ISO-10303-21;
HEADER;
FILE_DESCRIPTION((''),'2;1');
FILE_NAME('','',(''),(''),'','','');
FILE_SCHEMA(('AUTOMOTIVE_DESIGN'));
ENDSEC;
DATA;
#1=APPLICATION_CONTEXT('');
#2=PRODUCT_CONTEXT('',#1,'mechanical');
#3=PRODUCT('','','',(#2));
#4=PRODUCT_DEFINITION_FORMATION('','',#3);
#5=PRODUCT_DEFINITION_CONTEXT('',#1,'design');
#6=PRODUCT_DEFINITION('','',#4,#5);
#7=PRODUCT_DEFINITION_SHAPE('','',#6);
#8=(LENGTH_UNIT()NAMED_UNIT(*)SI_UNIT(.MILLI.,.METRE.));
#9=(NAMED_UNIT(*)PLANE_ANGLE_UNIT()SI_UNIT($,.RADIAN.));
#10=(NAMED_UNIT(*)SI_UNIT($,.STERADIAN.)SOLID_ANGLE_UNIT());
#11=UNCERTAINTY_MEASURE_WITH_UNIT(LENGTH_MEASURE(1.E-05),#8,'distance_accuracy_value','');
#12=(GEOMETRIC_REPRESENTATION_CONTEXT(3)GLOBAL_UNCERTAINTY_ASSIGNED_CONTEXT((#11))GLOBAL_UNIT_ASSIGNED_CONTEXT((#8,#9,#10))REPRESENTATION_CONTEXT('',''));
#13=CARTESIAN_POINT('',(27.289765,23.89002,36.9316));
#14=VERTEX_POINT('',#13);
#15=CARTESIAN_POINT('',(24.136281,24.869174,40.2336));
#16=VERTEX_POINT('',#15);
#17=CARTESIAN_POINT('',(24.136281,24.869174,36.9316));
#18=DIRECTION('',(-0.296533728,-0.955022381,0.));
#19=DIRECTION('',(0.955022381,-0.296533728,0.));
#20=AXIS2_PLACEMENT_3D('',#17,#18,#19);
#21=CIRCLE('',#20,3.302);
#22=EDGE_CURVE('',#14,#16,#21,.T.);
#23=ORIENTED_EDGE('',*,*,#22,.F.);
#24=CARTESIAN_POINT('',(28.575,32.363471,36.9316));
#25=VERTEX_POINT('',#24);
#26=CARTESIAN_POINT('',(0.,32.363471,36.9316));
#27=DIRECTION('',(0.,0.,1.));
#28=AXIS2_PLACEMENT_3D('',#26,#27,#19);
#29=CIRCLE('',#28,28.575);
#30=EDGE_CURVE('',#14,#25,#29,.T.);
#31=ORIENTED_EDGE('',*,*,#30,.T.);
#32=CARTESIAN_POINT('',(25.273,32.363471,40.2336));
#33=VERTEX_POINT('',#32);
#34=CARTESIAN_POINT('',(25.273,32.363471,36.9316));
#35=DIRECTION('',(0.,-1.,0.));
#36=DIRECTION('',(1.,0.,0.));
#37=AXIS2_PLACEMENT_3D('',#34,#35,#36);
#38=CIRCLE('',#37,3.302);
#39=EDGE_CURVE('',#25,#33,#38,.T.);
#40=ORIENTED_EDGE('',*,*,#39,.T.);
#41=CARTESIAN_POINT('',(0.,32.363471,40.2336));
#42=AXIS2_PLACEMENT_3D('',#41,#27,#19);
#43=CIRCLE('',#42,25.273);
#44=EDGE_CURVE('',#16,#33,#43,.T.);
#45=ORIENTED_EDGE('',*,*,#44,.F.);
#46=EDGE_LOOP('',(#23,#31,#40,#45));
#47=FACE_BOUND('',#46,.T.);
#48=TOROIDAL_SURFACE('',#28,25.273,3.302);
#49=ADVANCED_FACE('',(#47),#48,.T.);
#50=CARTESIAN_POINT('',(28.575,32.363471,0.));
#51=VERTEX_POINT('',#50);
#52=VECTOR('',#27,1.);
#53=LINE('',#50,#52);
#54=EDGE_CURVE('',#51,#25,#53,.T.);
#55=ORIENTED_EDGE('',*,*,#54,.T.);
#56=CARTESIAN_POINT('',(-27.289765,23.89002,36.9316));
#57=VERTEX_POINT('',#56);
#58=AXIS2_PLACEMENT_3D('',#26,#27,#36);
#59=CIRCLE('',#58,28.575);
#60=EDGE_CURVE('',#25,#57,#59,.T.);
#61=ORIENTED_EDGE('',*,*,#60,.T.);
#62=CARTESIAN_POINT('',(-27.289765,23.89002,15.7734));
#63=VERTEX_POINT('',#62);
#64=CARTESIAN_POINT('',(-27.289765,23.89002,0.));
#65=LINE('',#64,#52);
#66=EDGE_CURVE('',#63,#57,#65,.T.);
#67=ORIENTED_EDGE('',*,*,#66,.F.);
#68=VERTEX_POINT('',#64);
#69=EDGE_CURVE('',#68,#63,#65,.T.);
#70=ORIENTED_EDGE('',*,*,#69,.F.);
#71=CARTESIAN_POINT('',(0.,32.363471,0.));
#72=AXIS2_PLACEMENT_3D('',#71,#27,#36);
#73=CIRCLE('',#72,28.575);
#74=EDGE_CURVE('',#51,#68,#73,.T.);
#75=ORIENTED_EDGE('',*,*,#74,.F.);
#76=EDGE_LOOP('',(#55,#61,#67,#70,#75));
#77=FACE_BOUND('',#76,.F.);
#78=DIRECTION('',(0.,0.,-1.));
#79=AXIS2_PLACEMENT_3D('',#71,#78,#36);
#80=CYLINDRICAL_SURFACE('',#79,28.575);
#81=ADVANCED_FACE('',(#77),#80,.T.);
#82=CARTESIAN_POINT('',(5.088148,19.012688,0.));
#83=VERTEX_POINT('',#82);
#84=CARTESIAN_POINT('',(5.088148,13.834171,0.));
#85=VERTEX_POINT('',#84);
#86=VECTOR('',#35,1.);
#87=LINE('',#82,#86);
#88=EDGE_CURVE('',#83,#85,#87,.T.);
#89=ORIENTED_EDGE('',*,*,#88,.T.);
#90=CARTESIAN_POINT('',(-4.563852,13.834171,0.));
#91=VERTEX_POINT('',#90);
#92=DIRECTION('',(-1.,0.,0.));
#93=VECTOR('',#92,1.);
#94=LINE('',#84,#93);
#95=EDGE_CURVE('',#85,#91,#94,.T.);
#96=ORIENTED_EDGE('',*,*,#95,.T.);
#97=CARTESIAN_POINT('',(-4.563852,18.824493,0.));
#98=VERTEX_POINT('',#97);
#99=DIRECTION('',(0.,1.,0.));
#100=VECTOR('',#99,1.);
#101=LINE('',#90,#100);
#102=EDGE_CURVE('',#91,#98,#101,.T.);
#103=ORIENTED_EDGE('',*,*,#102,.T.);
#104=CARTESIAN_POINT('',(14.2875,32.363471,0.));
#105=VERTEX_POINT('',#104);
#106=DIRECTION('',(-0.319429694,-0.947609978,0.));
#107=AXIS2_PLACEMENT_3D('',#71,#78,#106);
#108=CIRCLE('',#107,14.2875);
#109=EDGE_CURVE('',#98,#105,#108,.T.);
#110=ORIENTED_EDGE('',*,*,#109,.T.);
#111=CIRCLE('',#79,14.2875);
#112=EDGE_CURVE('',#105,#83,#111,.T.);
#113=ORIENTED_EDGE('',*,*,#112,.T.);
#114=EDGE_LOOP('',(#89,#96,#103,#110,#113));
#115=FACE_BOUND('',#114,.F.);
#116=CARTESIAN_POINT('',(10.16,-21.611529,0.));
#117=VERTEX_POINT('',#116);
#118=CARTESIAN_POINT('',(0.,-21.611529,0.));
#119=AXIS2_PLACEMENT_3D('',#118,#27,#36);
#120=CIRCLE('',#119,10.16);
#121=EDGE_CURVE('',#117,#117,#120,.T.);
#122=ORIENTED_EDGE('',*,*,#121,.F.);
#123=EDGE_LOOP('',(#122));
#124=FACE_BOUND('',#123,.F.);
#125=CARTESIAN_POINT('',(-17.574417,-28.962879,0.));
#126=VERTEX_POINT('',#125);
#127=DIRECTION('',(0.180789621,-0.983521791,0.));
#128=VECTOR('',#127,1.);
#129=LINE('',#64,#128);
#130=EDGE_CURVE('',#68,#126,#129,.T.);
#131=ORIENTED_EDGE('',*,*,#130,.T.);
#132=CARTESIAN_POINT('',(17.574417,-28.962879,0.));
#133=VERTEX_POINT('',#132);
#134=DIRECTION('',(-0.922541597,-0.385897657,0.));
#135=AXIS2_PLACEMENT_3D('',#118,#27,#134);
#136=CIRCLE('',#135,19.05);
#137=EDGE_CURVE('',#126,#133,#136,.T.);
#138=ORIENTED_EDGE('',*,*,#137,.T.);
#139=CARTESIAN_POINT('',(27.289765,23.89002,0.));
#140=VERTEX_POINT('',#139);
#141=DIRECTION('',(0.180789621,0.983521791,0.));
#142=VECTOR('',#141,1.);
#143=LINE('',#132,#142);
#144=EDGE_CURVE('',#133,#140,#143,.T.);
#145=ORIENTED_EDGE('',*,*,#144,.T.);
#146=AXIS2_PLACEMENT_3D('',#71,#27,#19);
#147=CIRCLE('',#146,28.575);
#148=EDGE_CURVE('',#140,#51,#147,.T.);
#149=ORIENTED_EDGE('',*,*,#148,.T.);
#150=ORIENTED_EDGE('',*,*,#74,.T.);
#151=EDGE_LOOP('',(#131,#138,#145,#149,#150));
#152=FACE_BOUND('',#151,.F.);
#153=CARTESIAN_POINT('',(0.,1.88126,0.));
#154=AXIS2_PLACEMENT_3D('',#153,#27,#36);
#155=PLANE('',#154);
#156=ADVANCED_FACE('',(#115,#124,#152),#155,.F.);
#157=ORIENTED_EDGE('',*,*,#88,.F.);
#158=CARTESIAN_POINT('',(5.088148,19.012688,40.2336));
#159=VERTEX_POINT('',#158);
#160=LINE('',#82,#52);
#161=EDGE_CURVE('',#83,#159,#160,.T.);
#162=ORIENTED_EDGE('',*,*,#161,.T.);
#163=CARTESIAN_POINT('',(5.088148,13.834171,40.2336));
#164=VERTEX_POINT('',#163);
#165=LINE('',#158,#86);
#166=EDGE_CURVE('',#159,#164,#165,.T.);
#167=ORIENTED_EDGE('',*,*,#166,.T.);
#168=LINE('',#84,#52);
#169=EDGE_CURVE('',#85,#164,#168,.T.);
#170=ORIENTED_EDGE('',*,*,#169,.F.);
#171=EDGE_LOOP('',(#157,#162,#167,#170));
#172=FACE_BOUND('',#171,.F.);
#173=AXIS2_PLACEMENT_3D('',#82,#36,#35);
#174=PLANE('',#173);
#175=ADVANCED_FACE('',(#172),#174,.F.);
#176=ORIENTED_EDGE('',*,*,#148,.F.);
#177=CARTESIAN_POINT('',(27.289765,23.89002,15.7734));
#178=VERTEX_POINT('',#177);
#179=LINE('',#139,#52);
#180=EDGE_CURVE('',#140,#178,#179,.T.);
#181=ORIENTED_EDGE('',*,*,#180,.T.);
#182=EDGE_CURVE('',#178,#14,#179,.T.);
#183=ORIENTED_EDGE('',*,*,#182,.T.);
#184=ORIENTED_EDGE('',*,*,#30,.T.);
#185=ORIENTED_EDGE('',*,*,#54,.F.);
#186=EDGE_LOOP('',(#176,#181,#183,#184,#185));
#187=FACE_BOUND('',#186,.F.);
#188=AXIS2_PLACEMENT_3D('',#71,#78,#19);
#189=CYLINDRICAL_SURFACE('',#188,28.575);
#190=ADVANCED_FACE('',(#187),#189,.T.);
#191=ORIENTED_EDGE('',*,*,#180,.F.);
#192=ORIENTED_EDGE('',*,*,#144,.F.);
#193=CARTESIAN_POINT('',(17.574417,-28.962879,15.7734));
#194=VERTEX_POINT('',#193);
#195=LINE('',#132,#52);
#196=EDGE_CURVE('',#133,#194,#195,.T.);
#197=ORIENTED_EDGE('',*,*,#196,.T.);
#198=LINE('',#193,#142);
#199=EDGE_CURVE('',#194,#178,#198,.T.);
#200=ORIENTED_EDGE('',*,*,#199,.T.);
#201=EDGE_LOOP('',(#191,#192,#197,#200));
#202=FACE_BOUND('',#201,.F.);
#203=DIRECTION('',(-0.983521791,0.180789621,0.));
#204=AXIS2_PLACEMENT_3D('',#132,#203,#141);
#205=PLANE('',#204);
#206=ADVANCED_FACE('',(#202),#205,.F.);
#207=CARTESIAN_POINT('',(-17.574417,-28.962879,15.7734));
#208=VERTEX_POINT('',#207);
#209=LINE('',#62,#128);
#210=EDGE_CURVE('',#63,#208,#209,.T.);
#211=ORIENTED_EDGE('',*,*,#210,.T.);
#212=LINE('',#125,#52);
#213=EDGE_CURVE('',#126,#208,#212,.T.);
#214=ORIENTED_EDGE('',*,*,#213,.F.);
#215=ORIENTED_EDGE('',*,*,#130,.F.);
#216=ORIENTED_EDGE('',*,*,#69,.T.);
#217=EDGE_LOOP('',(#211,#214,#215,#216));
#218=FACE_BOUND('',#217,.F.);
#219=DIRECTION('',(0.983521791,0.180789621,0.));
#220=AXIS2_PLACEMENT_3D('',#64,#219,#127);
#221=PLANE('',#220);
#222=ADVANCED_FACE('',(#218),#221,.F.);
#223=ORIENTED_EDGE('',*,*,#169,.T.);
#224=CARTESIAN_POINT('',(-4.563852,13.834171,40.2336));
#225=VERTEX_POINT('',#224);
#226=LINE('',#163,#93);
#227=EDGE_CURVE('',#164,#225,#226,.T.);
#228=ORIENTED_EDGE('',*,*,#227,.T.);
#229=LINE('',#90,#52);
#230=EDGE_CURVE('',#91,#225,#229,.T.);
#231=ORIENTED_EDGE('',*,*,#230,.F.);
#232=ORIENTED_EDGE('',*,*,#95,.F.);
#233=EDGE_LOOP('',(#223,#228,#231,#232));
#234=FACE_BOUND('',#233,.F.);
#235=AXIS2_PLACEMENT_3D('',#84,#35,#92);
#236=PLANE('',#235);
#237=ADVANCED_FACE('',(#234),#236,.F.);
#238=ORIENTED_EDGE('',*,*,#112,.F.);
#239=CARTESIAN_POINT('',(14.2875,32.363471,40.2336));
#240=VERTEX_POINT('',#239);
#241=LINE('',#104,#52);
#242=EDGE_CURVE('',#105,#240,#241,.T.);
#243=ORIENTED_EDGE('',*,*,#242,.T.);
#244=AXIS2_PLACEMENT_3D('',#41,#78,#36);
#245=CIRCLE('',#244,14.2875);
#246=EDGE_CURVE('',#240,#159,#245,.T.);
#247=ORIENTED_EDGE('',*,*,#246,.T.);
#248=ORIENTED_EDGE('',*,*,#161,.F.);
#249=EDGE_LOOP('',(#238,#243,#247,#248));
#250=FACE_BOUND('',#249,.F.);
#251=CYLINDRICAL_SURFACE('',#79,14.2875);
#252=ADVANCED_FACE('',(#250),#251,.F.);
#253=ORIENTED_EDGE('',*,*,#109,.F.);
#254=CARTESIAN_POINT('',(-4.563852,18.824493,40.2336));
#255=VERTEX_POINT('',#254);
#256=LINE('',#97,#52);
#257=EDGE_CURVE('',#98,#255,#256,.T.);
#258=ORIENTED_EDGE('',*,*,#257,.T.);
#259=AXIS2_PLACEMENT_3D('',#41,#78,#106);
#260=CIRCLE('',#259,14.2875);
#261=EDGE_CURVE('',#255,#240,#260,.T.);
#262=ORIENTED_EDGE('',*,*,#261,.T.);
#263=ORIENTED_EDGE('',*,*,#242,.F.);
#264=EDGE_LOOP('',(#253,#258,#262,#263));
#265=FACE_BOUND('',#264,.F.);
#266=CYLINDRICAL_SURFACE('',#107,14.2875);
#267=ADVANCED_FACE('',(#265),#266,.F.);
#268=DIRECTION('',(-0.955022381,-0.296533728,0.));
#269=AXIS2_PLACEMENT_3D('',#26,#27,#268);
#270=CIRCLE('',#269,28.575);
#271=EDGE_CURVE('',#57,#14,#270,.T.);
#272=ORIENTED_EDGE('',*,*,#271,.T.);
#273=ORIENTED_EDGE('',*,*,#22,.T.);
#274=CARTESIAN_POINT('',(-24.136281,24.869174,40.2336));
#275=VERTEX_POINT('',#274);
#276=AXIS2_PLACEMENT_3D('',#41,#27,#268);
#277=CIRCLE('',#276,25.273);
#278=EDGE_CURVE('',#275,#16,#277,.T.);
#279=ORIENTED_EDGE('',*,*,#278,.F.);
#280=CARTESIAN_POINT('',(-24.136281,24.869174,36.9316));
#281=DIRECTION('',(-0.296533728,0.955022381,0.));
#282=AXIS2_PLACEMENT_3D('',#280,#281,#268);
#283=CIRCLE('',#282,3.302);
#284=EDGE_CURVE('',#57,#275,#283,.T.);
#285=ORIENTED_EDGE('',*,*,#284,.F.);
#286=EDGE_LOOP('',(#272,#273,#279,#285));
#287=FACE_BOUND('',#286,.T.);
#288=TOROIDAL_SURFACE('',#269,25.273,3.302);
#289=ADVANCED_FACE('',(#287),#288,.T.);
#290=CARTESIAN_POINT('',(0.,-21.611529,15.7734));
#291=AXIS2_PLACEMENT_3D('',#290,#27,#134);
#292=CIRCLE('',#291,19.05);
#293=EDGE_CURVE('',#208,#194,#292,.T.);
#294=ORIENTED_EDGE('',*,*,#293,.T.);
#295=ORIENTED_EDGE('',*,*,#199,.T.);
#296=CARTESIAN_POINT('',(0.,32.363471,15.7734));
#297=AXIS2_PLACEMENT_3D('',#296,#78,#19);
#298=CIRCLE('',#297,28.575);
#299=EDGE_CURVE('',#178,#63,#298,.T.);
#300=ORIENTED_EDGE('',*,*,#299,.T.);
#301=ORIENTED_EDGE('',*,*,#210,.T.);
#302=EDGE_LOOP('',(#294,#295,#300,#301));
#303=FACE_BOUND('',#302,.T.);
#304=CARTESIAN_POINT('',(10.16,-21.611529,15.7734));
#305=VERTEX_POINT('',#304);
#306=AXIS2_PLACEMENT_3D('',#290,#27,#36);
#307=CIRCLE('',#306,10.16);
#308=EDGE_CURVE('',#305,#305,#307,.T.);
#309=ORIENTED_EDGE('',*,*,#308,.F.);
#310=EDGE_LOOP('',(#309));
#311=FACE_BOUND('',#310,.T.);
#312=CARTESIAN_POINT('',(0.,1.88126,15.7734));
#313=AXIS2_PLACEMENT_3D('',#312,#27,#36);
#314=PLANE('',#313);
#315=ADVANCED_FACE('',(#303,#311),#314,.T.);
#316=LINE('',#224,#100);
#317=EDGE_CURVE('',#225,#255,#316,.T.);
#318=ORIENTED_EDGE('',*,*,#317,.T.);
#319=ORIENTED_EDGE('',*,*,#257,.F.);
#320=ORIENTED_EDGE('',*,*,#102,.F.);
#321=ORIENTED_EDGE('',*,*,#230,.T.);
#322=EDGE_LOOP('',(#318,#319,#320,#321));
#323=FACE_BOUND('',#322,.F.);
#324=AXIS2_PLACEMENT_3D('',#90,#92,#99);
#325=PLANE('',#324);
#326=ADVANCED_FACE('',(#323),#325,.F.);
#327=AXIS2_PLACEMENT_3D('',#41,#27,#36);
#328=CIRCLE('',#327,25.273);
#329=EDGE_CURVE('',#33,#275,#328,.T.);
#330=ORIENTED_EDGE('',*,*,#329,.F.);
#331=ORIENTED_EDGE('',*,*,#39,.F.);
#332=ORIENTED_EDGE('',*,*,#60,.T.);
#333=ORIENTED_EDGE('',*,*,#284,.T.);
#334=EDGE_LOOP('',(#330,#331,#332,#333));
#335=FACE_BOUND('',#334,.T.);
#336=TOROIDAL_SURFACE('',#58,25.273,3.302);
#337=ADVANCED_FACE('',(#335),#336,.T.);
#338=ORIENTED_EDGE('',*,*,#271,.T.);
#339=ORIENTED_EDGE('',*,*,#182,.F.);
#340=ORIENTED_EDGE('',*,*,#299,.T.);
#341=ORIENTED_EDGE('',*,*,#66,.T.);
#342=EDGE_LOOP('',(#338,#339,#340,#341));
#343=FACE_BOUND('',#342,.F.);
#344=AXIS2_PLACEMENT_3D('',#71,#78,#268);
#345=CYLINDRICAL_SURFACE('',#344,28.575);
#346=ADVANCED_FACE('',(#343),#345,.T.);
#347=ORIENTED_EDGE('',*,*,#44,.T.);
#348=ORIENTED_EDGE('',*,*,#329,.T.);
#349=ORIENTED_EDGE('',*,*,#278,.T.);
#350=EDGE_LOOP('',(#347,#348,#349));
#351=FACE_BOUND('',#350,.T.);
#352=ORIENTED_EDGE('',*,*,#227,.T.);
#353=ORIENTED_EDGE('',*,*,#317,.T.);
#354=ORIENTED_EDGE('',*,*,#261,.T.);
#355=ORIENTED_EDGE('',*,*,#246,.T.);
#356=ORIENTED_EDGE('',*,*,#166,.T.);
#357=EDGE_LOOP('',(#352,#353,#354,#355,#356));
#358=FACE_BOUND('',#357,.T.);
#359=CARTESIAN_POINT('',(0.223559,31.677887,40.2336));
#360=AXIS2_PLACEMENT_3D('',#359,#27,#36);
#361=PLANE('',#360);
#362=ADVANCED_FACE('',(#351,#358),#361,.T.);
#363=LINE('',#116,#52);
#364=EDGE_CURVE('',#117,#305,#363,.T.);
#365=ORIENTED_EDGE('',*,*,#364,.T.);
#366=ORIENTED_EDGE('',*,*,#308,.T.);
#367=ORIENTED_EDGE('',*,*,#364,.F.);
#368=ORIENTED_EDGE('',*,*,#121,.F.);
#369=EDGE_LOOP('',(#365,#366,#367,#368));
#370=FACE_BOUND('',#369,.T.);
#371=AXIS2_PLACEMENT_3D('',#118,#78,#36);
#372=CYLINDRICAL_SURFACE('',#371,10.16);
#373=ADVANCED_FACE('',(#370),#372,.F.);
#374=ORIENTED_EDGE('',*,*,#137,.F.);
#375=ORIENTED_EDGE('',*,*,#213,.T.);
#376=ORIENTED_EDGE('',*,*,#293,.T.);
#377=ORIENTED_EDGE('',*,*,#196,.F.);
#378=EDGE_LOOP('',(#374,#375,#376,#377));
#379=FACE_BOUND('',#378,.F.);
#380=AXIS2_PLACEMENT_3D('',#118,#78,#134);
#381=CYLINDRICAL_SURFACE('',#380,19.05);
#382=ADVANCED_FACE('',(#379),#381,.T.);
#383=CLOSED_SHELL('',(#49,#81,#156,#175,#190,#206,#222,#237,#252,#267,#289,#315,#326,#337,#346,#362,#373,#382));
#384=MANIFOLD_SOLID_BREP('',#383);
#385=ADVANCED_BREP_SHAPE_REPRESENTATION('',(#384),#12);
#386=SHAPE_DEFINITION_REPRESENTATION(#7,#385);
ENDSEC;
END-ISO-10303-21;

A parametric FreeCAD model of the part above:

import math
import FreeCAD as App
import Part
import Sketcher

V = App.Vector
Q = App.Units.Quantity


def edges_at(feature, points):
    """Names of the edges that pass closest to the given points."""
    edges = feature.Shape.Edges
    near = lambda p: min(range(len(edges)), key=lambda i: edges[i].distToShape(Part.Vertex(*p))[0])
    return sorted({f"Edge{near(p) + 1}" for p in points})

doc = App.newDocument("Part")
params = doc.addObject("Spreadsheet::Sheet", "Params")
for row, (alias, value) in enumerate([
    ("sketch1_radius", "1.125 in"),
    ("sketch1_radius2", "0.5625 in"),
    ("sketch1_width", "0.38 in"),
    ("pad1_length", "1.584 in"),
    ("sketch2_diameter", "0.8 in"),
    ("sketch2_radius", "0.75 in"),
    ("sketch2_radius2", "1.125 in"),
    ("pad2_length", "0.621 in"),
    ("fillet_radius", "0.13 in"),
], start=1):
    params.set(f"A{row}", alias)
    params.set(f"B{row}", "=" + value)
    params.setAlias(f"B{row}", alias)

body = doc.addObject("PartDesign::Body", "Body")

sketch1 = body.newObject("Sketcher::SketchObject", "Sketch")
sketch1.AttachmentSupport = (doc.getObject("XY_Plane"), [""])
sketch1.MapMode = "FlatFace"
sketch1.addGeometry([
    Part.ArcOfCircle(Part.Circle(V(0, 32.363471, 0), V(0, 0, 1), 28.575), math.radians(-17.249529), math.radians(0)),
    Part.ArcOfCircle(Part.Circle(V(0, 32.363471, 0), V(0, 0, 1), 28.575), math.radians(0), math.radians(197.249529)),
    Part.ArcOfCircle(Part.Circle(V(0, 32.363471, 0), V(0, 0, 1), 28.575), math.radians(-162.750471), math.radians(-17.249529)),
    Part.LineSegment(V(-4.563852, 13.834171, 0), V(-4.563852, 18.824493, 0)),
    Part.ArcOfCircle(Part.Circle(V(0, 32.363471, 0), V(0, 0, 1), 14.2875), math.radians(0), math.radians(251.371561)),
    Part.ArcOfCircle(Part.Circle(V(0, 32.363471, 0), V(0, 0, 1), 14.2875), math.radians(-69.137538), math.radians(0)),
    Part.LineSegment(V(5.088148, 19.012688, 0), V(5.088148, 13.834171, 0)),
    Part.LineSegment(V(5.088148, 13.834171, 0), V(-4.563852, 13.834171, 0)),
], False)
sketch1.addConstraint([
    Sketcher.Constraint("Tangent", 0, 2, 1, 1),
    Sketcher.Constraint("Tangent", 1, 2, 2, 1),
    Sketcher.Constraint("Tangent", 2, 2, 0, 1),
    Sketcher.Constraint("Coincident", 3, 2, 4, 2),
    Sketcher.Constraint("Tangent", 4, 1, 5, 2),
    Sketcher.Constraint("Coincident", 5, 1, 6, 1),
    Sketcher.Constraint("Coincident", 6, 2, 7, 1),
    Sketcher.Constraint("Coincident", 7, 2, 3, 1),
    Sketcher.Constraint("Vertical", 3),
    Sketcher.Constraint("Vertical", 6),
    Sketcher.Constraint("Horizontal", 7),
    Sketcher.Constraint("Coincident", 4, 3, 0, 3),
    Sketcher.Constraint("Equal", 4, 5),
    Sketcher.Constraint("Symmetric", 1, 2, 2, 2, -2),
    Sketcher.Constraint("Horizontal", 5, 3, 0, 2),
    Sketcher.Constraint("Horizontal", 0, 2, 4, 1),
    Sketcher.Constraint("Radius", 0, Q("1.125 in")),
    Sketcher.Constraint("Radius", 4, Q("0.5625 in")),
    Sketcher.Constraint("DistanceX", 7, 2, 7, 1, Q("0.38 in")),
    Sketcher.Constraint("DistanceX", 1, 2, -1, 1, Q("1.0744002 in")),
    Sketcher.Constraint("DistanceY", 6, 2, 0, 3, Q("0.7295 in")),
    Sketcher.Constraint("DistanceY", 3, 1, 3, 2, Q("4.990322 mm")),
    Sketcher.Constraint("DistanceY", -1, 1, 0, 3, Q("32.363471 mm")),
])
sketch1.setExpression("Constraints[16]", "Params.sketch1_radius")
sketch1.setExpression("Constraints[17]", "Params.sketch1_radius2")
sketch1.setExpression("Constraints[18]", "Params.sketch1_width")
pad1 = body.newObject("PartDesign::Pad", "Pad")
pad1.Profile = sketch1
pad1.setExpression("Length", "Params.pad1_length")

sketch2 = body.newObject("Sketcher::SketchObject", "Sketch001")
sketch2.AttachmentSupport = (doc.getObject("XY_Plane"), [""])
sketch2.MapMode = "FlatFace"
sketch2.addGeometry([
    Part.ArcOfCircle(Part.Circle(V(0, 32.363471, 0), V(0, 0, 1), 28.575), math.radians(-162.750471), math.radians(-17.249529)),
    Part.LineSegment(V(-27.289765, 23.89002, 0), V(-17.574417, -28.962879, 0)),
    Part.ArcOfCircle(Part.Circle(V(0, -21.611529, 0), V(0, 0, 1), 19.05), math.radians(-157.300521), math.radians(-22.699479)),
    Part.LineSegment(V(17.574417, -28.962879, 0), V(27.289765, 23.89002, 0)),
    Part.Circle(V(0, -21.611529, 0), V(0, 0, 1), 10.16),
], False)
sketch2.addConstraint([
    Sketcher.Constraint("Coincident", 0, 1, 1, 1),
    Sketcher.Constraint("Coincident", 1, 2, 2, 1),
    Sketcher.Constraint("Coincident", 2, 2, 3, 1),
    Sketcher.Constraint("Coincident", 3, 2, 0, 2),
    Sketcher.Constraint("Coincident", 4, 3, 2, 3),
    Sketcher.Constraint("Symmetric", 1, 2, 2, 2, -2),
    Sketcher.Constraint("Symmetric", 0, 1, 3, 2, -2),
    Sketcher.Constraint("Diameter", 4, Q("0.8 in")),
    Sketcher.Constraint("Radius", 2, Q("0.75 in")),
    Sketcher.Constraint("Radius", 0, Q("1.125 in")),
    Sketcher.Constraint("DistanceY", 2, 3, 0, 3, Q("2.125 in")),
    Sketcher.Constraint("DistanceX", 0, 1, -1, 1, Q("1.0744002 in")),
    Sketcher.Constraint("DistanceY", 1, 2, 0, 1, Q("52.852899 mm")),
    Sketcher.Constraint("DistanceY", -1, 1, 0, 3, Q("32.363471 mm")),
])
sketch2.setExpression("Constraints[7]", "Params.sketch2_diameter")
sketch2.setExpression("Constraints[8]", "Params.sketch2_radius")
sketch2.setExpression("Constraints[9]", "Params.sketch2_radius2")
pad2 = body.newObject("PartDesign::Pad", "Pad001")
pad2.Profile = sketch2
pad2.setExpression("Length", "Params.pad2_length")
doc.recompute()

fillet = body.newObject("PartDesign::Fillet", "Fillet")
fillet.Base = (pad2, edges_at(pad2, [(-4.285, 60.615, 40.234)]))
fillet.setExpression("Radius", "Params.fillet_radius")

doc.recompute()
